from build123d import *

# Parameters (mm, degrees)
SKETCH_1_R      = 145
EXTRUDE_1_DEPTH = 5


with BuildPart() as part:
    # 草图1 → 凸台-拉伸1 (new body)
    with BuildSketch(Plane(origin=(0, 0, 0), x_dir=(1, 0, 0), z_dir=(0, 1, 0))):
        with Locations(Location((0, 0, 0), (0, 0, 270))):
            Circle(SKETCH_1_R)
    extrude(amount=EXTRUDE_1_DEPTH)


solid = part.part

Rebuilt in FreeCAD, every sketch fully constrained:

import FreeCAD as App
import Part
import Sketcher
from FreeCAD import Vector

doc = App.newDocument("Part")
params = doc.addObject("Spreadsheet::Sheet", "Params")
for row, (alias, value) in enumerate([
    ("sketch1_diameter", "290 mm"),
    ("pad1_length", "5 mm"),
], start=1):
    params.set(f"A{row}", alias)
    params.set(f"B{row}", "=" + value)
    params.setAlias(f"B{row}", alias)

body = doc.addObject("PartDesign::Body", "Body")

sketch1 = body.newObject("Sketcher::SketchObject", "Sketch")
sketch1.AttachmentSupport = (doc.getObject("XZ_Plane"), [""])
sketch1.MapMode = "FlatFace"
sketch1.addGeometry(Part.Circle(Vector(0, 0, 0), Vector(0, 0, 1), 145), False)
sketch1.addConstraint([
    Sketcher.Constraint("Coincident", 0, 3, -1, 1),
    Sketcher.Constraint("Diameter", 0, 290.0),
])
sketch1.setExpression("Constraints[1]", "Params.sketch1_diameter")
pad1 = body.newObject("PartDesign::Pad", "Pad")
pad1.Profile = sketch1
pad1.setExpression("Length", "Params.pad1_length")
pad1.Reversed = True

doc.recompute()
